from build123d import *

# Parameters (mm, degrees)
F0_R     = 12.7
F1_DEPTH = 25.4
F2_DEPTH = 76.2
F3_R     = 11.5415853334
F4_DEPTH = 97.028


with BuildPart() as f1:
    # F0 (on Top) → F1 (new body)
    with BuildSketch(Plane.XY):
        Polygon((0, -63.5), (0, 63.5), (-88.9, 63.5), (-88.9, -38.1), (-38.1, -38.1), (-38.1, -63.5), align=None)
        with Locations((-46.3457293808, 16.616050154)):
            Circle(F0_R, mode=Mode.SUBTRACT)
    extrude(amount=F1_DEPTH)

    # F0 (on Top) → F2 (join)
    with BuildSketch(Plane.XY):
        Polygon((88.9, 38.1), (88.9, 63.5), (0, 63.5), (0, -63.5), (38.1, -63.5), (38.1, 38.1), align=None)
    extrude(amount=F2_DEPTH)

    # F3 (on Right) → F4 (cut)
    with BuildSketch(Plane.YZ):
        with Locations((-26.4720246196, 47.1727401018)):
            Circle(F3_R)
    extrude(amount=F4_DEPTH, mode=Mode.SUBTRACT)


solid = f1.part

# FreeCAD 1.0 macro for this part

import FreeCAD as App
import Part
import Sketcher
from FreeCAD import Vector
Q = App.Units.Quantity

doc = App.newDocument("Part")
params = doc.addObject("Spreadsheet::Sheet", "Params")
for row, (alias, value) in enumerate([
    ("sketch1_diameter", "1 in"),
    ("sketch1_width", "2 in"),
    ("sketch1_height", "5 in"),
    ("sketch1_height2", "4 in"),
    ("sketch1_width2", "3.5 in"),
    ("pad1_length", "1 in"),
    ("sketch2_width", "2 in"),
    ("sketch2_height", "1 in"),
    ("sketch2_height2", "5 in"),
    ("sketch2_width2", "3.5 in"),
    ("pad2_length", "3 in"),
    ("pocket1_length", "3.82 in"),
], start=1):
    params.set(f"A{row}", alias)
    params.set(f"B{row}", "=" + value)
    params.setAlias(f"B{row}", alias)

body = doc.addObject("PartDesign::Body", "Body")

# Sketch on XY plane
sketch1 = body.newObject("Sketcher::SketchObject", "Sketch")
sketch1.AttachmentSupport = (doc.getObject("XY_Plane"), [""])
sketch1.MapMode = "FlatFace"
sketch1.addGeometry(Part.LineSegment(Vector(0, -63.5, 0), Vector(0, 63.5, 0)), False)
sketch1.addGeometry(Part.LineSegment(Vector(0, 63.5, 0), Vector(-88.9, 63.5, 0)), False)
sketch1.addGeometry(Part.LineSegment(Vector(-88.9, 63.5, 0), Vector(-88.9, -38.1, 0)), False)
sketch1.addGeometry(Part.LineSegment(Vector(-88.9, -38.1, 0), Vector(-38.1, -38.1, 0)), False)
sketch1.addGeometry(Part.LineSegment(Vector(-38.1, -38.1, 0), Vector(-38.1, -63.5, 0)), False)
sketch1.addGeometry(Part.LineSegment(Vector(-38.1, -63.5, 0), Vector(0, -63.5, 0)), False)
sketch1.addGeometry(Part.Circle(Vector(-46.345729, 16.61605, 0), Vector(0, 0, 1), 12.7), False)
sketch1.addConstraint(Sketcher.Constraint("Coincident", 0, 2, 1, 1))
sketch1.addConstraint(Sketcher.Constraint("Coincident", 1, 2, 2, 1))
sketch1.addConstraint(Sketcher.Constraint("Coincident", 2, 2, 3, 1))
sketch1.addConstraint(Sketcher.Constraint("Coincident", 3, 2, 4, 1))
sketch1.addConstraint(Sketcher.Constraint("Coincident", 4, 2, 5, 1))
sketch1.addConstraint(Sketcher.Constraint("Coincident", 5, 2, 0, 1))
sketch1.addConstraint(Sketcher.Constraint("Vertical", 0))
sketch1.addConstraint(Sketcher.Constraint("Horizontal", 1))
sketch1.addConstraint(Sketcher.Constraint("Vertical", 2))
sketch1.addConstraint(Sketcher.Constraint("Horizontal", 3))
sketch1.addConstraint(Sketcher.Constraint("Vertical", 4))
sketch1.addConstraint(Sketcher.Constraint("Horizontal", 5))
sketch1.addConstraint(Sketcher.Constraint("Symmetric", 0, 2, 5, 2, -1, 1))
sketch1.addConstraint(Sketcher.Constraint("Diameter", 6, Q("1 in")))
sketch1.addConstraint(Sketcher.Constraint("DistanceX", 3, 1, 3, 2, Q("2 in")))
sketch1.addConstraint(Sketcher.Constraint("DistanceY", 0, 1, 0, 2, Q("5 in")))
sketch1.addConstraint(Sketcher.Constraint("DistanceY", 2, 2, 2, 1, Q("4 in")))
sketch1.addConstraint(Sketcher.Constraint("DistanceX", 1, 2, 1, 1, Q("3.5 in")))
sketch1.addConstraint(Sketcher.Constraint("DistanceX", 6, 3, -1, 1, 46.345729))
sketch1.addConstraint(Sketcher.Constraint("DistanceY", -1, 1, 6, 3, 16.61605))
sketch1.setExpression("Constraints[13]", "Params.sketch1_diameter")
sketch1.setExpression("Constraints[14]", "Params.sketch1_width")
sketch1.setExpression("Constraints[15]", "Params.sketch1_height")
sketch1.setExpression("Constraints[16]", "Params.sketch1_height2")
sketch1.setExpression("Constraints[17]", "Params.sketch1_width2")
pad1 = body.newObject("PartDesign::Pad", "Pad")
pad1.Profile = sketch1
pad1.setExpression("Length", "Params.pad1_length")

# Sketch on XY plane
sketch2 = body.newObject("Sketcher::SketchObject", "Sketch001")
sketch2.AttachmentSupport = (doc.getObject("XY_Plane"), [""])
sketch2.MapMode = "FlatFace"
sketch2.addGeometry(Part.LineSegment(Vector(88.9, 38.1, 0), Vector(88.9, 63.5, 0)), False)
sketch2.addGeometry(Part.LineSegment(Vector(88.9, 63.5, 0), Vector(0, 63.5, 0)), False)
sketch2.addGeometry(Part.LineSegment(Vector(0, 63.5, 0), Vector(0, -63.5, 0)), False)
sketch2.addGeometry(Part.LineSegment(Vector(0, -63.5, 0), Vector(38.1, -63.5, 0)), False)
sketch2.addGeometry(Part.LineSegment(Vector(38.1, -63.5, 0), Vector(38.1, 38.1, 0)), False)
sketch2.addGeometry(Part.LineSegment(Vector(38.1, 38.1, 0), Vector(88.9, 38.1, 0)), False)
sketch2.addConstraint(Sketcher.Constraint("Coincident", 0, 2, 1, 1))
sketch2.addConstraint(Sketcher.Constraint("Coincident", 1, 2, 2, 1))
sketch2.addConstraint(Sketcher.Constraint("Coincident", 2, 2, 3, 1))
sketch2.addConstraint(Sketcher.Constraint("Coincident", 3, 2, 4, 1))
sketch2.addConstraint(Sketcher.Constraint("Coincident", 4, 2, 5, 1))
sketch2.addConstraint(Sketcher.Constraint("Coincident", 5, 2, 0, 1))
sketch2.addConstraint(Sketcher.Constraint("Vertical", 0))
sketch2.addConstraint(Sketcher.Constraint("Horizontal", 1))
sketch2.addConstraint(Sketcher.Constraint("Vertical", 2))
sketch2.addConstraint(Sketcher.Constraint("Horizontal", 3))
sketch2.addConstraint(Sketcher.Constraint("Vertical", 4))
sketch2.addConstraint(Sketcher.Constraint("Horizontal", 5))
sketch2.addConstraint(Sketcher.Constraint("Symmetric", 1, 2, 2, 2, -1, 1))
sketch2.addConstraint(Sketcher.Constraint("DistanceX", 5, 1, 5, 2, Q("2 in")))
sketch2.addConstraint(Sketcher.Constraint("DistanceY", 0, 1, 0, 2, Q("1 in")))
sketch2.addConstraint(Sketcher.Constraint("DistanceY", 2, 2, 2, 1, Q("5 in")))
sketch2.addConstraint(Sketcher.Constraint("DistanceX", 1, 2, 1, 1, Q("3.5 in")))
sketch2.setExpression("Constraints[13]", "Params.sketch2_width")
sketch2.setExpression("Constraints[14]", "Params.sketch2_height")
sketch2.setExpression("Constraints[15]", "Params.sketch2_height2")
sketch2.setExpression("Constraints[16]", "Params.sketch2_width2")
pad2 = body.newObject("PartDesign::Pad", "Pad001")
pad2.Profile = sketch2
pad2.setExpression("Length", "Params.pad2_length")

# Sketch on YZ plane
sketch3 = body.newObject("Sketcher::SketchObject", "Sketch002")
sketch3.AttachmentSupport = (doc.getObject("YZ_Plane"), [""])
sketch3.MapMode = "FlatFace"
sketch3.addGeometry(Part.Circle(Vector(-26.472025, 47.17274, 0), Vector(0, 0, 1), 11.541585), False)
sketch3.addConstraint(Sketcher.Constraint("Diameter", 0, 23.083171))
sketch3.addConstraint(Sketcher.Constraint("DistanceY", -1, 1, 0, 3, 47.17274))
sketch3.addConstraint(Sketcher.Constraint("DistanceX", 0, 3, -1, 1, 26.472025))
pocket1 = body.newObject("PartDesign::Pocket", "Pocket")
pocket1.Profile = sketch3
pocket1.setExpression("Length", "Params.pocket1_length")
pocket1.Reversed = True

doc.recompute()
